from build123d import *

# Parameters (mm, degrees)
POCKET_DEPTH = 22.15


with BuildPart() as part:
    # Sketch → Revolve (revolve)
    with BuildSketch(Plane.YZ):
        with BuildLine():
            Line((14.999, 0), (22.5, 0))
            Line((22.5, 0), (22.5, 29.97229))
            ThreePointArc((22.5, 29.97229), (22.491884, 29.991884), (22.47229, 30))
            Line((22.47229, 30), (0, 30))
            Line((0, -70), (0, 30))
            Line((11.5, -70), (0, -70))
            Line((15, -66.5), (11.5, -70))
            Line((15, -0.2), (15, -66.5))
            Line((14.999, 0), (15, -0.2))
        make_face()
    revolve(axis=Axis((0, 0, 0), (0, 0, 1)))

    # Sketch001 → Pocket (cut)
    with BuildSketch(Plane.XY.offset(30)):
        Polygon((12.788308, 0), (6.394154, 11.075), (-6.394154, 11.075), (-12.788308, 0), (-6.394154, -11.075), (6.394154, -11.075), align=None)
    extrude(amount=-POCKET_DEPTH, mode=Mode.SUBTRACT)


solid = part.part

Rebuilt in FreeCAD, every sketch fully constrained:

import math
import FreeCAD as App
import Part
import Sketcher

V = App.Vector
Q = App.Units.Quantity

doc = App.newDocument("Part")
body = doc.addObject("PartDesign::Body", "Body")

sketch1 = doc.addObject("Sketcher::SketchObject", "Sketch")
body.addObject(sketch1)
sketch1.AttachmentSupport = (doc.YZ_Plane, [""])
sketch1.MapMode = "FlatFace"
sketch1.addGeometry([
    Part.LineSegment(V(14.999, 0, 0), V(22.5, 0, 0)),
    Part.LineSegment(V(22.5, 0, 0), V(22.5, 29.972, 0)),
    Part.ArcOfCircle(Part.Circle(V(22.472, 29.972, 0), V(0, 0, 1), 0.028), math.radians(0), math.radians(90)),
    Part.LineSegment(V(22.472, 30, 0), V(0, 30, 0)),
    Part.LineSegment(V(0, 30, 0), V(0, -70, 0)),
    Part.LineSegment(V(0, -70, 0), V(11.5, -70, 0)),
    Part.LineSegment(V(11.5, -70, 0), V(15, -66.5, 0)),
    Part.LineSegment(V(15, -66.5, 0), V(15, -0.2, 0)),
    Part.LineSegment(V(15, -0.2, 0), V(14.999, 0, 0)),
], False)
sketch1.addConstraint([
    Sketcher.Constraint("Coincident", 0, 2, 1, 1),
    Sketcher.Constraint("Coincident", 1, 2, 2, 1),
    Sketcher.Constraint("Coincident", 2, 2, 3, 1),
    Sketcher.Constraint("Coincident", 3, 2, 4, 1),
    Sketcher.Constraint("Coincident", 4, 2, 5, 1),
    Sketcher.Constraint("Coincident", 5, 2, 6, 1),
    Sketcher.Constraint("Coincident", 6, 2, 7, 1),
    Sketcher.Constraint("Coincident", 7, 2, 8, 1),
    Sketcher.Constraint("Coincident", 8, 2, 0, 1),
    Sketcher.Constraint("Horizontal", 0),
    Sketcher.Constraint("Vertical", 1),
    Sketcher.Constraint("Horizontal", 3),
    Sketcher.Constraint("Vertical", 4),
    Sketcher.Constraint("Horizontal", 5),
    Sketcher.Constraint("Vertical", 7),
    Sketcher.Constraint("PointOnObject", 0, 2, -1),
    Sketcher.Constraint("PointOnObject", 3, 2, -2),
    Sketcher.Constraint("Horizontal", 2, 3, 1, 2),
    Sketcher.Constraint("DistanceY", 4, 2, 4, 1, 100.0),
    Sketcher.Constraint("Angle", 6, Q("45 deg")),
    Sketcher.Constraint("DistanceX", 5, 1, 5, 2, 11.5),
    Sketcher.Constraint("DistanceY", 7, 1, 7, 2, 66.3),
    Sketcher.Constraint("DistanceY", -1, 1, 2, 2, 30.0),
    Sketcher.Constraint("DistanceX", -1, 1, 6, 2, 15.0),
    Sketcher.Constraint("DistanceX", 5, 2, 0, 2, 11.0),
    Sketcher.Constraint("DistanceX", 0, 1, 0, 2, 7.501),
    Sketcher.Constraint("Radius", 2, 0.02771),
    Sketcher.Constraint("DistanceX", 3, 2, 3, 1, 22.47229),
])
revolution = doc.addObject("PartDesign::Revolution", "Revolution")
body.addObject(revolution)
revolution.Profile = sketch1
revolution.ReferenceAxis = (sketch1, ["V_Axis"])
revolution.Angle = 360

sketch2 = doc.addObject("Sketcher::SketchObject", "Sketch001")
body.addObject(sketch2)
sketch2.AttachmentSupport = (doc.XY_Plane, [""])
sketch2.MapMode = "FlatFace"
sketch2.AttachmentOffset = App.Placement(V(0, 0, 30), App.Rotation())
sketch2.addGeometry([
    Part.LineSegment(V(13, 0, 0), V(6, 11, 0)),
    Part.LineSegment(V(6, 11, 0), V(-6, 11, 0)),
    Part.LineSegment(V(-6, 11, 0), V(-13, 0, 0)),
    Part.LineSegment(V(-13, 0, 0), V(-6, -11, 0)),
    Part.LineSegment(V(-6, -11, 0), V(6, -11, 0)),
    Part.LineSegment(V(6, -11, 0), V(13, 0, 0)),
], False)
sketch2.addConstraint([
    Sketcher.Constraint("Coincident", 0, 2, 1, 1),
    Sketcher.Constraint("Coincident", 1, 2, 2, 1),
    Sketcher.Constraint("Coincident", 2, 2, 3, 1),
    Sketcher.Constraint("Coincident", 3, 2, 4, 1),
    Sketcher.Constraint("Coincident", 4, 2, 5, 1),
    Sketcher.Constraint("Coincident", 5, 2, 0, 1),
    Sketcher.Constraint("Horizontal", 1),
    Sketcher.Constraint("Horizontal", 4),
    Sketcher.Constraint("Symmetric", 0, 2, 3, 2, -1, 1),
    Sketcher.Constraint("Symmetric", 2, 2, 5, 2, -1, 1),
    Sketcher.Constraint("PointOnObject", 2, 2, -1),
    Sketcher.Constraint("Parallel", 2, 5),
    Sketcher.Constraint("Vertical", 1, 2, 3, 2),
    Sketcher.Constraint("Angle", 0, Q("119.999999 deg")),
    Sketcher.Constraint("DistanceY", 3, 2, 1, 2, 22.15),
    Sketcher.Constraint("DistanceX", 1, 2, 1, 1, 12.788308),
])
pocket1 = doc.addObject("PartDesign::Pocket", "Pocket")
body.addObject(pocket1)
pocket1.Profile = sketch2
pocket1.Length = 22.15

doc.recompute()
